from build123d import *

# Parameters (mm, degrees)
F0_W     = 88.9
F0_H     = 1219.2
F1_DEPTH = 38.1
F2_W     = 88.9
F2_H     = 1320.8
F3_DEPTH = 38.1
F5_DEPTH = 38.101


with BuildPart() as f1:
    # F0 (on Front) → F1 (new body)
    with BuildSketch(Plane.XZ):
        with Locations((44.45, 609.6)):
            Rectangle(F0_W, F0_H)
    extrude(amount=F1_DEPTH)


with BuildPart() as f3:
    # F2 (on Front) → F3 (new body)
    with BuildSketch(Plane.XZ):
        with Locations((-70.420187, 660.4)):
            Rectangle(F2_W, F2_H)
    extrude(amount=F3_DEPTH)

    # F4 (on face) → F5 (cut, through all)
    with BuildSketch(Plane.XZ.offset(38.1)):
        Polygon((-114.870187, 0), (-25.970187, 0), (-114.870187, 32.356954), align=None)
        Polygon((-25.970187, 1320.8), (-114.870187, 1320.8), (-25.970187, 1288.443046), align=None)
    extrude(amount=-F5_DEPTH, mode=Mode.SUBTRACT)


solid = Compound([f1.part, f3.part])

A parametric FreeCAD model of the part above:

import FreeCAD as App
import Part
import Sketcher
Q = App.Units.Quantity

doc = App.newDocument("Part")
body = doc.addObject("PartDesign::Body", "Body")

sketch1 = doc.addObject("Sketcher::SketchObject", "Sketch")
body.addObject(sketch1)
sketch1.AttachmentSupport = (doc.XZ_Plane, [""])
sketch1.MapMode = "FlatFace"
sketch1.addGeometry([
    Part.LineSegment(App.Vector(0, 1219.2, 0), App.Vector(0, 0, 0)),
    Part.LineSegment(App.Vector(0, 0, 0), App.Vector(88.9, 0, 0)),
    Part.LineSegment(App.Vector(88.9, 0, 0), App.Vector(88.9, 1219.2, 0)),
    Part.LineSegment(App.Vector(88.9, 1219.2, 0), App.Vector(0, 1219.2, 0)),
], False)
sketch1.addConstraint([
    Sketcher.Constraint("Coincident", 0, 2, 1, 1),
    Sketcher.Constraint("Coincident", 1, 2, 2, 1),
    Sketcher.Constraint("Coincident", 2, 2, 3, 1),
    Sketcher.Constraint("Coincident", 3, 2, 0, 1),
    Sketcher.Constraint("Vertical", 0),
    Sketcher.Constraint("Horizontal", 1),
    Sketcher.Constraint("Vertical", 2),
    Sketcher.Constraint("Horizontal", 3),
    Sketcher.Constraint("Coincident", 0, 2, -1, 1),
    Sketcher.Constraint("DistanceY", 0, 2, 0, 1, Q("48 in")),
    Sketcher.Constraint("DistanceX", 1, 1, 1, 2, Q("3.5 in")),
])
pad1 = doc.addObject("PartDesign::Pad", "Pad")
body.addObject(pad1)
pad1.Profile = sketch1
pad1.Length = Q("1.5 in")
body2 = doc.addObject("PartDesign::Body", "Body001")

sketch2 = doc.addObject("Sketcher::SketchObject", "Sketch001")
body2.addObject(sketch2)
sketch2.AttachmentSupport = (doc.getObject("XZ_Plane001"), [""])
sketch2.MapMode = "FlatFace"
sketch2.addGeometry([
    Part.LineSegment(App.Vector(-114.870187, 1320.8, 0), App.Vector(-114.870187, 0, 0)),
    Part.LineSegment(App.Vector(-114.870187, 0, 0), App.Vector(-25.970187, 0, 0)),
    Part.LineSegment(App.Vector(-25.970187, 0, 0), App.Vector(-25.970187, 1320.8, 0)),
    Part.LineSegment(App.Vector(-25.970187, 1320.8, 0), App.Vector(-114.870187, 1320.8, 0)),
], False)
sketch2.addConstraint([
    Sketcher.Constraint("Coincident", 0, 2, 1, 1),
    Sketcher.Constraint("Coincident", 1, 2, 2, 1),
    Sketcher.Constraint("Coincident", 2, 2, 3, 1),
    Sketcher.Constraint("Coincident", 3, 2, 0, 1),
    Sketcher.Constraint("Vertical", 0),
    Sketcher.Constraint("Horizontal", 1),
    Sketcher.Constraint("Vertical", 2),
    Sketcher.Constraint("Horizontal", 3),
    Sketcher.Constraint("PointOnObject", 0, 2, -1),
    Sketcher.Constraint("DistanceY", 0, 2, 0, 1, Q("52 in")),
    Sketcher.Constraint("DistanceX", 1, 1, 1, 2, Q("3.5 in")),
    Sketcher.Constraint("DistanceX", 0, 2, -1, 1, 114.870187),
])
pad2 = doc.addObject("PartDesign::Pad", "Pad001")
body2.addObject(pad2)
pad2.Profile = sketch2
pad2.Length = Q("1.5 in")

sketch3 = doc.addObject("Sketcher::SketchObject", "Sketch002")
body2.addObject(sketch3)
sketch3.AttachmentSupport = (doc.getObject("XZ_Plane001"), [""])
sketch3.MapMode = "FlatFace"
sketch3.AttachmentOffset = App.Placement(App.Vector(0, 0, 1.5 * 25.4), App.Rotation())
sketch3.addGeometry([
    Part.LineSegment(App.Vector(-114.870187, 0, 0), App.Vector(-25.970187, 0, 0)),
    Part.LineSegment(App.Vector(-25.970187, 0, 0), App.Vector(-114.870187, 32.356954, 0)),
    Part.LineSegment(App.Vector(-114.870187, 32.356954, 0), App.Vector(-114.870187, 0, 0)),
    Part.LineSegment(App.Vector(-25.970187, 1320.8, 0), App.Vector(-114.870187, 1320.8, 0)),
    Part.LineSegment(App.Vector(-114.870187, 1320.8, 0), App.Vector(-25.970187, 1288.443046, 0)),
    Part.LineSegment(App.Vector(-25.970187, 1288.443046, 0), App.Vector(-25.970187, 1320.8, 0)),
], False)
sketch3.addConstraint([
    Sketcher.Constraint("Coincident", 0, 2, 1, 1),
    Sketcher.Constraint("Coincident", 1, 2, 2, 1),
    Sketcher.Constraint("Coincident", 2, 2, 0, 1),
    Sketcher.Constraint("Coincident", 3, 2, 4, 1),
    Sketcher.Constraint("Coincident", 4, 2, 5, 1),
    Sketcher.Constraint("Coincident", 5, 2, 3, 1),
    Sketcher.Constraint("Horizontal", 0),
    Sketcher.Constraint("Vertical", 2),
    Sketcher.Constraint("Horizontal", 3),
    Sketcher.Constraint("Vertical", 5),
    Sketcher.Constraint("PointOnObject", 0, 2, -1),
    Sketcher.Constraint("Parallel", 1, 4),
    Sketcher.Constraint("Vertical", 2, 2, 3, 2),
    Sketcher.Constraint("Vertical", 0, 2, 4, 2),
    Sketcher.Constraint("DistanceX", 0, 1, 0, 2, Q("3.5 in")),
    Sketcher.Constraint("DistanceY", -1, 1, 3, 2, Q("52 in")),
    Sketcher.Constraint("Angle", 1, Q("160 deg")),
    Sketcher.Constraint("DistanceX", 0, 2, -1, 1, 25.970187),
])
pocket1 = doc.addObject("PartDesign::Pocket", "Pocket")
body2.addObject(pocket1)
pocket1.Profile = sketch3
pocket1.Type = "ThroughAll"

doc.recompute()
